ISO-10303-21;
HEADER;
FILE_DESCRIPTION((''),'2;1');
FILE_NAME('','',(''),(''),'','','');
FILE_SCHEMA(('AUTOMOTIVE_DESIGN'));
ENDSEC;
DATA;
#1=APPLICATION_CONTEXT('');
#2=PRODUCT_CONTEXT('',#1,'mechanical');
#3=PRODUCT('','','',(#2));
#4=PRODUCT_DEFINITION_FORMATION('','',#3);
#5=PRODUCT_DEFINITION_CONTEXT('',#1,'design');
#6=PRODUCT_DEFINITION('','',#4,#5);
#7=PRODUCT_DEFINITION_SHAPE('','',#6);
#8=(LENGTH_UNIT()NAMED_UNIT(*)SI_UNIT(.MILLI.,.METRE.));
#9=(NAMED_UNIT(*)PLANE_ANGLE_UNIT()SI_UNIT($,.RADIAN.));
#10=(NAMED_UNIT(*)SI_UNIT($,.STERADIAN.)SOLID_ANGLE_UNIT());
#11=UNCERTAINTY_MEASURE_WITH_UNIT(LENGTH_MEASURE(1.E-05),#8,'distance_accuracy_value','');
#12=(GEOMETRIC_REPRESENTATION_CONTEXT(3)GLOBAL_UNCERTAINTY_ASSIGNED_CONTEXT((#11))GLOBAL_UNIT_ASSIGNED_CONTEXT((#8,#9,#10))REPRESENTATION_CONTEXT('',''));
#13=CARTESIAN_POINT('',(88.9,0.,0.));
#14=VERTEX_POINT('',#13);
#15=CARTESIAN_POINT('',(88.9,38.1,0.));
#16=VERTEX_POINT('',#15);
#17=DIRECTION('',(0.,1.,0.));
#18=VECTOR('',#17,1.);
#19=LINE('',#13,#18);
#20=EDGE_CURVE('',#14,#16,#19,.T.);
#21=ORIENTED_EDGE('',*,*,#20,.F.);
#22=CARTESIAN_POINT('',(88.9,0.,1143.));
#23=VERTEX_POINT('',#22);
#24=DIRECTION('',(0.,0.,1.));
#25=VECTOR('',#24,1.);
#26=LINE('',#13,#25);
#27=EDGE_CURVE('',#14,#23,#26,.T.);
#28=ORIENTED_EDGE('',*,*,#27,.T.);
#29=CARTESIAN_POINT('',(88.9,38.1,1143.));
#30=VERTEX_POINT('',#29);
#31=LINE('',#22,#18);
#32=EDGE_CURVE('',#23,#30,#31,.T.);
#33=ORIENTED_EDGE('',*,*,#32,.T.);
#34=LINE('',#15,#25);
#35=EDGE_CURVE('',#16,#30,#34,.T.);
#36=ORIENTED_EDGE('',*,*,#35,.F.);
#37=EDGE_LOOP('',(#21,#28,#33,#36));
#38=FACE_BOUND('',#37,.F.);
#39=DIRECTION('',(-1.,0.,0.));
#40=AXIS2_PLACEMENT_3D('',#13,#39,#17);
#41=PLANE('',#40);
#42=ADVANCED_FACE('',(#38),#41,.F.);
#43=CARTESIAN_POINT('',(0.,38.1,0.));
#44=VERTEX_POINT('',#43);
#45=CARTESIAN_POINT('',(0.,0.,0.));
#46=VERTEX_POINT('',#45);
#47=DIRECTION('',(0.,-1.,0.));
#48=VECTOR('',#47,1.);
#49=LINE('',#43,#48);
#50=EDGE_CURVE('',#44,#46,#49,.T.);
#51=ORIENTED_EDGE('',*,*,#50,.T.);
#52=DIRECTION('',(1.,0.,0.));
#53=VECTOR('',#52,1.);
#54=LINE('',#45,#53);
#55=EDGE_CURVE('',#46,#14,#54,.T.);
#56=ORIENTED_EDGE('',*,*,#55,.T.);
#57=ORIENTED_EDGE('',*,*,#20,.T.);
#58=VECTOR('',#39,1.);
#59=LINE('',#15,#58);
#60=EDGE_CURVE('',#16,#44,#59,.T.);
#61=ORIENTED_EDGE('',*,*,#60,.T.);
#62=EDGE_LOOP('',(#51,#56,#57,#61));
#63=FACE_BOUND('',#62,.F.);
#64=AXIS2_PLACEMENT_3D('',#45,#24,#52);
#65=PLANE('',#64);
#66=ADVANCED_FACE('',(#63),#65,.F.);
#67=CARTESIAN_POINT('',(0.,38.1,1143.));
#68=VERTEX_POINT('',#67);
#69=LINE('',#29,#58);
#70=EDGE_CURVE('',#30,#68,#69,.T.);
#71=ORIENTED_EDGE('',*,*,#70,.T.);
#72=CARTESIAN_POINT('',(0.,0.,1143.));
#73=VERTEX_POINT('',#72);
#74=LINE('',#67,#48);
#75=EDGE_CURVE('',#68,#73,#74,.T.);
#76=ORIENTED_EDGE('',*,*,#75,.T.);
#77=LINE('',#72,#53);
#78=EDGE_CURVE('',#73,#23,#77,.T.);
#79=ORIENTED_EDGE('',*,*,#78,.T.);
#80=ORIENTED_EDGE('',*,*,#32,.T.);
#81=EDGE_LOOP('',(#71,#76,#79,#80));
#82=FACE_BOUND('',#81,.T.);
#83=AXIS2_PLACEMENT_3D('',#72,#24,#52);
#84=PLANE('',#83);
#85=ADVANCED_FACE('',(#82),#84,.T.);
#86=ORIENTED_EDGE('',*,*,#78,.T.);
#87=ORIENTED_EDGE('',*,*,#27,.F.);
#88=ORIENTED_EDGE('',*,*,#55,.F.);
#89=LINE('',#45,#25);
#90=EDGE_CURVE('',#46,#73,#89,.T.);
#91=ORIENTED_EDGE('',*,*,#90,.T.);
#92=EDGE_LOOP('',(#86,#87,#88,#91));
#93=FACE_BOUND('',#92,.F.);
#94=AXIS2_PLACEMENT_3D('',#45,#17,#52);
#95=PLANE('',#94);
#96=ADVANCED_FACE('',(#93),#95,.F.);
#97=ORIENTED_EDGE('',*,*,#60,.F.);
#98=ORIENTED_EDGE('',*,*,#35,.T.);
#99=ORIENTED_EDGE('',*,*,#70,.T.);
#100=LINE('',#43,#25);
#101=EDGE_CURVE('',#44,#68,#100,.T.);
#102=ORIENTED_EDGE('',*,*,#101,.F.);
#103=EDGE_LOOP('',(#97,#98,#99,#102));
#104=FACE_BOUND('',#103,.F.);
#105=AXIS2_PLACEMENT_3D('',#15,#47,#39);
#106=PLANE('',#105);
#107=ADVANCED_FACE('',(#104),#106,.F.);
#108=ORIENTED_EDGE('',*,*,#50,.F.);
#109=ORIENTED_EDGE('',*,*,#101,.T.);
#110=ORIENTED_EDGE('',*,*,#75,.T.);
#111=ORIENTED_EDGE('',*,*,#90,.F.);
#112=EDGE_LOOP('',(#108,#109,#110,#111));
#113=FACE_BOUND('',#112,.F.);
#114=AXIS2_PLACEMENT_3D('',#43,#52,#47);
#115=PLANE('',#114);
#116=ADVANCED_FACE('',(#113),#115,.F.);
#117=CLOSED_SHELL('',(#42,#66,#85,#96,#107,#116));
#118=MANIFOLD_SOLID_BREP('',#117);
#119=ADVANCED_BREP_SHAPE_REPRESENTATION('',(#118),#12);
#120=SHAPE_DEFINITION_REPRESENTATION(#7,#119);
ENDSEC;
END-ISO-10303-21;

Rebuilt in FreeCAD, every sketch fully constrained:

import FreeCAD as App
import Part
import Sketcher
Q = App.Units.Quantity


def add_polygon(sketch, points):
    """Adds a closed chain of lines whose ends are joined by coincident constraints."""
    first, n = sketch.GeometryCount, len(points)
    for a, b in zip(points, points[1:] + points[:1]):
        sketch.addGeometry(Part.LineSegment(App.Vector(*a, 0), App.Vector(*b, 0)), False)
    for i in range(n):
        sketch.addConstraint(Sketcher.Constraint("Coincident", first + i, 2, first + (i + 1) % n, 1))

doc = App.newDocument("Part")
body = doc.addObject("PartDesign::Body", "Body")

# Sketch on XY plane
sketch1 = body.newObject("Sketcher::SketchObject", "Sketch")
sketch1.AttachmentSupport = (doc.getObject("XY_Plane"), [""])
sketch1.MapMode = "FlatFace"
add_polygon(sketch1, [(0, 38.1), (0, 0), (88.9, 0), (88.9, 38.1)])  # lines 0-3
sketch1.addConstraint(Sketcher.Constraint("Vertical", 0))
sketch1.addConstraint(Sketcher.Constraint("Horizontal", 1))
sketch1.addConstraint(Sketcher.Constraint("Vertical", 2))
sketch1.addConstraint(Sketcher.Constraint("Horizontal", 3))
sketch1.addConstraint(Sketcher.Constraint("Coincident", 0, 2, -1, 1))
sketch1.addConstraint(Sketcher.Constraint("DistanceX", 1, 1, 1, 2, Q("3.5 in")))
sketch1.addConstraint(Sketcher.Constraint("DistanceY", 0, 2, 0, 1, Q("1.5 in")))
pad1 = body.newObject("PartDesign::Pad", "Pad")
pad1.Profile = sketch1
pad1.Length = Q("45 in")

doc.recompute()
